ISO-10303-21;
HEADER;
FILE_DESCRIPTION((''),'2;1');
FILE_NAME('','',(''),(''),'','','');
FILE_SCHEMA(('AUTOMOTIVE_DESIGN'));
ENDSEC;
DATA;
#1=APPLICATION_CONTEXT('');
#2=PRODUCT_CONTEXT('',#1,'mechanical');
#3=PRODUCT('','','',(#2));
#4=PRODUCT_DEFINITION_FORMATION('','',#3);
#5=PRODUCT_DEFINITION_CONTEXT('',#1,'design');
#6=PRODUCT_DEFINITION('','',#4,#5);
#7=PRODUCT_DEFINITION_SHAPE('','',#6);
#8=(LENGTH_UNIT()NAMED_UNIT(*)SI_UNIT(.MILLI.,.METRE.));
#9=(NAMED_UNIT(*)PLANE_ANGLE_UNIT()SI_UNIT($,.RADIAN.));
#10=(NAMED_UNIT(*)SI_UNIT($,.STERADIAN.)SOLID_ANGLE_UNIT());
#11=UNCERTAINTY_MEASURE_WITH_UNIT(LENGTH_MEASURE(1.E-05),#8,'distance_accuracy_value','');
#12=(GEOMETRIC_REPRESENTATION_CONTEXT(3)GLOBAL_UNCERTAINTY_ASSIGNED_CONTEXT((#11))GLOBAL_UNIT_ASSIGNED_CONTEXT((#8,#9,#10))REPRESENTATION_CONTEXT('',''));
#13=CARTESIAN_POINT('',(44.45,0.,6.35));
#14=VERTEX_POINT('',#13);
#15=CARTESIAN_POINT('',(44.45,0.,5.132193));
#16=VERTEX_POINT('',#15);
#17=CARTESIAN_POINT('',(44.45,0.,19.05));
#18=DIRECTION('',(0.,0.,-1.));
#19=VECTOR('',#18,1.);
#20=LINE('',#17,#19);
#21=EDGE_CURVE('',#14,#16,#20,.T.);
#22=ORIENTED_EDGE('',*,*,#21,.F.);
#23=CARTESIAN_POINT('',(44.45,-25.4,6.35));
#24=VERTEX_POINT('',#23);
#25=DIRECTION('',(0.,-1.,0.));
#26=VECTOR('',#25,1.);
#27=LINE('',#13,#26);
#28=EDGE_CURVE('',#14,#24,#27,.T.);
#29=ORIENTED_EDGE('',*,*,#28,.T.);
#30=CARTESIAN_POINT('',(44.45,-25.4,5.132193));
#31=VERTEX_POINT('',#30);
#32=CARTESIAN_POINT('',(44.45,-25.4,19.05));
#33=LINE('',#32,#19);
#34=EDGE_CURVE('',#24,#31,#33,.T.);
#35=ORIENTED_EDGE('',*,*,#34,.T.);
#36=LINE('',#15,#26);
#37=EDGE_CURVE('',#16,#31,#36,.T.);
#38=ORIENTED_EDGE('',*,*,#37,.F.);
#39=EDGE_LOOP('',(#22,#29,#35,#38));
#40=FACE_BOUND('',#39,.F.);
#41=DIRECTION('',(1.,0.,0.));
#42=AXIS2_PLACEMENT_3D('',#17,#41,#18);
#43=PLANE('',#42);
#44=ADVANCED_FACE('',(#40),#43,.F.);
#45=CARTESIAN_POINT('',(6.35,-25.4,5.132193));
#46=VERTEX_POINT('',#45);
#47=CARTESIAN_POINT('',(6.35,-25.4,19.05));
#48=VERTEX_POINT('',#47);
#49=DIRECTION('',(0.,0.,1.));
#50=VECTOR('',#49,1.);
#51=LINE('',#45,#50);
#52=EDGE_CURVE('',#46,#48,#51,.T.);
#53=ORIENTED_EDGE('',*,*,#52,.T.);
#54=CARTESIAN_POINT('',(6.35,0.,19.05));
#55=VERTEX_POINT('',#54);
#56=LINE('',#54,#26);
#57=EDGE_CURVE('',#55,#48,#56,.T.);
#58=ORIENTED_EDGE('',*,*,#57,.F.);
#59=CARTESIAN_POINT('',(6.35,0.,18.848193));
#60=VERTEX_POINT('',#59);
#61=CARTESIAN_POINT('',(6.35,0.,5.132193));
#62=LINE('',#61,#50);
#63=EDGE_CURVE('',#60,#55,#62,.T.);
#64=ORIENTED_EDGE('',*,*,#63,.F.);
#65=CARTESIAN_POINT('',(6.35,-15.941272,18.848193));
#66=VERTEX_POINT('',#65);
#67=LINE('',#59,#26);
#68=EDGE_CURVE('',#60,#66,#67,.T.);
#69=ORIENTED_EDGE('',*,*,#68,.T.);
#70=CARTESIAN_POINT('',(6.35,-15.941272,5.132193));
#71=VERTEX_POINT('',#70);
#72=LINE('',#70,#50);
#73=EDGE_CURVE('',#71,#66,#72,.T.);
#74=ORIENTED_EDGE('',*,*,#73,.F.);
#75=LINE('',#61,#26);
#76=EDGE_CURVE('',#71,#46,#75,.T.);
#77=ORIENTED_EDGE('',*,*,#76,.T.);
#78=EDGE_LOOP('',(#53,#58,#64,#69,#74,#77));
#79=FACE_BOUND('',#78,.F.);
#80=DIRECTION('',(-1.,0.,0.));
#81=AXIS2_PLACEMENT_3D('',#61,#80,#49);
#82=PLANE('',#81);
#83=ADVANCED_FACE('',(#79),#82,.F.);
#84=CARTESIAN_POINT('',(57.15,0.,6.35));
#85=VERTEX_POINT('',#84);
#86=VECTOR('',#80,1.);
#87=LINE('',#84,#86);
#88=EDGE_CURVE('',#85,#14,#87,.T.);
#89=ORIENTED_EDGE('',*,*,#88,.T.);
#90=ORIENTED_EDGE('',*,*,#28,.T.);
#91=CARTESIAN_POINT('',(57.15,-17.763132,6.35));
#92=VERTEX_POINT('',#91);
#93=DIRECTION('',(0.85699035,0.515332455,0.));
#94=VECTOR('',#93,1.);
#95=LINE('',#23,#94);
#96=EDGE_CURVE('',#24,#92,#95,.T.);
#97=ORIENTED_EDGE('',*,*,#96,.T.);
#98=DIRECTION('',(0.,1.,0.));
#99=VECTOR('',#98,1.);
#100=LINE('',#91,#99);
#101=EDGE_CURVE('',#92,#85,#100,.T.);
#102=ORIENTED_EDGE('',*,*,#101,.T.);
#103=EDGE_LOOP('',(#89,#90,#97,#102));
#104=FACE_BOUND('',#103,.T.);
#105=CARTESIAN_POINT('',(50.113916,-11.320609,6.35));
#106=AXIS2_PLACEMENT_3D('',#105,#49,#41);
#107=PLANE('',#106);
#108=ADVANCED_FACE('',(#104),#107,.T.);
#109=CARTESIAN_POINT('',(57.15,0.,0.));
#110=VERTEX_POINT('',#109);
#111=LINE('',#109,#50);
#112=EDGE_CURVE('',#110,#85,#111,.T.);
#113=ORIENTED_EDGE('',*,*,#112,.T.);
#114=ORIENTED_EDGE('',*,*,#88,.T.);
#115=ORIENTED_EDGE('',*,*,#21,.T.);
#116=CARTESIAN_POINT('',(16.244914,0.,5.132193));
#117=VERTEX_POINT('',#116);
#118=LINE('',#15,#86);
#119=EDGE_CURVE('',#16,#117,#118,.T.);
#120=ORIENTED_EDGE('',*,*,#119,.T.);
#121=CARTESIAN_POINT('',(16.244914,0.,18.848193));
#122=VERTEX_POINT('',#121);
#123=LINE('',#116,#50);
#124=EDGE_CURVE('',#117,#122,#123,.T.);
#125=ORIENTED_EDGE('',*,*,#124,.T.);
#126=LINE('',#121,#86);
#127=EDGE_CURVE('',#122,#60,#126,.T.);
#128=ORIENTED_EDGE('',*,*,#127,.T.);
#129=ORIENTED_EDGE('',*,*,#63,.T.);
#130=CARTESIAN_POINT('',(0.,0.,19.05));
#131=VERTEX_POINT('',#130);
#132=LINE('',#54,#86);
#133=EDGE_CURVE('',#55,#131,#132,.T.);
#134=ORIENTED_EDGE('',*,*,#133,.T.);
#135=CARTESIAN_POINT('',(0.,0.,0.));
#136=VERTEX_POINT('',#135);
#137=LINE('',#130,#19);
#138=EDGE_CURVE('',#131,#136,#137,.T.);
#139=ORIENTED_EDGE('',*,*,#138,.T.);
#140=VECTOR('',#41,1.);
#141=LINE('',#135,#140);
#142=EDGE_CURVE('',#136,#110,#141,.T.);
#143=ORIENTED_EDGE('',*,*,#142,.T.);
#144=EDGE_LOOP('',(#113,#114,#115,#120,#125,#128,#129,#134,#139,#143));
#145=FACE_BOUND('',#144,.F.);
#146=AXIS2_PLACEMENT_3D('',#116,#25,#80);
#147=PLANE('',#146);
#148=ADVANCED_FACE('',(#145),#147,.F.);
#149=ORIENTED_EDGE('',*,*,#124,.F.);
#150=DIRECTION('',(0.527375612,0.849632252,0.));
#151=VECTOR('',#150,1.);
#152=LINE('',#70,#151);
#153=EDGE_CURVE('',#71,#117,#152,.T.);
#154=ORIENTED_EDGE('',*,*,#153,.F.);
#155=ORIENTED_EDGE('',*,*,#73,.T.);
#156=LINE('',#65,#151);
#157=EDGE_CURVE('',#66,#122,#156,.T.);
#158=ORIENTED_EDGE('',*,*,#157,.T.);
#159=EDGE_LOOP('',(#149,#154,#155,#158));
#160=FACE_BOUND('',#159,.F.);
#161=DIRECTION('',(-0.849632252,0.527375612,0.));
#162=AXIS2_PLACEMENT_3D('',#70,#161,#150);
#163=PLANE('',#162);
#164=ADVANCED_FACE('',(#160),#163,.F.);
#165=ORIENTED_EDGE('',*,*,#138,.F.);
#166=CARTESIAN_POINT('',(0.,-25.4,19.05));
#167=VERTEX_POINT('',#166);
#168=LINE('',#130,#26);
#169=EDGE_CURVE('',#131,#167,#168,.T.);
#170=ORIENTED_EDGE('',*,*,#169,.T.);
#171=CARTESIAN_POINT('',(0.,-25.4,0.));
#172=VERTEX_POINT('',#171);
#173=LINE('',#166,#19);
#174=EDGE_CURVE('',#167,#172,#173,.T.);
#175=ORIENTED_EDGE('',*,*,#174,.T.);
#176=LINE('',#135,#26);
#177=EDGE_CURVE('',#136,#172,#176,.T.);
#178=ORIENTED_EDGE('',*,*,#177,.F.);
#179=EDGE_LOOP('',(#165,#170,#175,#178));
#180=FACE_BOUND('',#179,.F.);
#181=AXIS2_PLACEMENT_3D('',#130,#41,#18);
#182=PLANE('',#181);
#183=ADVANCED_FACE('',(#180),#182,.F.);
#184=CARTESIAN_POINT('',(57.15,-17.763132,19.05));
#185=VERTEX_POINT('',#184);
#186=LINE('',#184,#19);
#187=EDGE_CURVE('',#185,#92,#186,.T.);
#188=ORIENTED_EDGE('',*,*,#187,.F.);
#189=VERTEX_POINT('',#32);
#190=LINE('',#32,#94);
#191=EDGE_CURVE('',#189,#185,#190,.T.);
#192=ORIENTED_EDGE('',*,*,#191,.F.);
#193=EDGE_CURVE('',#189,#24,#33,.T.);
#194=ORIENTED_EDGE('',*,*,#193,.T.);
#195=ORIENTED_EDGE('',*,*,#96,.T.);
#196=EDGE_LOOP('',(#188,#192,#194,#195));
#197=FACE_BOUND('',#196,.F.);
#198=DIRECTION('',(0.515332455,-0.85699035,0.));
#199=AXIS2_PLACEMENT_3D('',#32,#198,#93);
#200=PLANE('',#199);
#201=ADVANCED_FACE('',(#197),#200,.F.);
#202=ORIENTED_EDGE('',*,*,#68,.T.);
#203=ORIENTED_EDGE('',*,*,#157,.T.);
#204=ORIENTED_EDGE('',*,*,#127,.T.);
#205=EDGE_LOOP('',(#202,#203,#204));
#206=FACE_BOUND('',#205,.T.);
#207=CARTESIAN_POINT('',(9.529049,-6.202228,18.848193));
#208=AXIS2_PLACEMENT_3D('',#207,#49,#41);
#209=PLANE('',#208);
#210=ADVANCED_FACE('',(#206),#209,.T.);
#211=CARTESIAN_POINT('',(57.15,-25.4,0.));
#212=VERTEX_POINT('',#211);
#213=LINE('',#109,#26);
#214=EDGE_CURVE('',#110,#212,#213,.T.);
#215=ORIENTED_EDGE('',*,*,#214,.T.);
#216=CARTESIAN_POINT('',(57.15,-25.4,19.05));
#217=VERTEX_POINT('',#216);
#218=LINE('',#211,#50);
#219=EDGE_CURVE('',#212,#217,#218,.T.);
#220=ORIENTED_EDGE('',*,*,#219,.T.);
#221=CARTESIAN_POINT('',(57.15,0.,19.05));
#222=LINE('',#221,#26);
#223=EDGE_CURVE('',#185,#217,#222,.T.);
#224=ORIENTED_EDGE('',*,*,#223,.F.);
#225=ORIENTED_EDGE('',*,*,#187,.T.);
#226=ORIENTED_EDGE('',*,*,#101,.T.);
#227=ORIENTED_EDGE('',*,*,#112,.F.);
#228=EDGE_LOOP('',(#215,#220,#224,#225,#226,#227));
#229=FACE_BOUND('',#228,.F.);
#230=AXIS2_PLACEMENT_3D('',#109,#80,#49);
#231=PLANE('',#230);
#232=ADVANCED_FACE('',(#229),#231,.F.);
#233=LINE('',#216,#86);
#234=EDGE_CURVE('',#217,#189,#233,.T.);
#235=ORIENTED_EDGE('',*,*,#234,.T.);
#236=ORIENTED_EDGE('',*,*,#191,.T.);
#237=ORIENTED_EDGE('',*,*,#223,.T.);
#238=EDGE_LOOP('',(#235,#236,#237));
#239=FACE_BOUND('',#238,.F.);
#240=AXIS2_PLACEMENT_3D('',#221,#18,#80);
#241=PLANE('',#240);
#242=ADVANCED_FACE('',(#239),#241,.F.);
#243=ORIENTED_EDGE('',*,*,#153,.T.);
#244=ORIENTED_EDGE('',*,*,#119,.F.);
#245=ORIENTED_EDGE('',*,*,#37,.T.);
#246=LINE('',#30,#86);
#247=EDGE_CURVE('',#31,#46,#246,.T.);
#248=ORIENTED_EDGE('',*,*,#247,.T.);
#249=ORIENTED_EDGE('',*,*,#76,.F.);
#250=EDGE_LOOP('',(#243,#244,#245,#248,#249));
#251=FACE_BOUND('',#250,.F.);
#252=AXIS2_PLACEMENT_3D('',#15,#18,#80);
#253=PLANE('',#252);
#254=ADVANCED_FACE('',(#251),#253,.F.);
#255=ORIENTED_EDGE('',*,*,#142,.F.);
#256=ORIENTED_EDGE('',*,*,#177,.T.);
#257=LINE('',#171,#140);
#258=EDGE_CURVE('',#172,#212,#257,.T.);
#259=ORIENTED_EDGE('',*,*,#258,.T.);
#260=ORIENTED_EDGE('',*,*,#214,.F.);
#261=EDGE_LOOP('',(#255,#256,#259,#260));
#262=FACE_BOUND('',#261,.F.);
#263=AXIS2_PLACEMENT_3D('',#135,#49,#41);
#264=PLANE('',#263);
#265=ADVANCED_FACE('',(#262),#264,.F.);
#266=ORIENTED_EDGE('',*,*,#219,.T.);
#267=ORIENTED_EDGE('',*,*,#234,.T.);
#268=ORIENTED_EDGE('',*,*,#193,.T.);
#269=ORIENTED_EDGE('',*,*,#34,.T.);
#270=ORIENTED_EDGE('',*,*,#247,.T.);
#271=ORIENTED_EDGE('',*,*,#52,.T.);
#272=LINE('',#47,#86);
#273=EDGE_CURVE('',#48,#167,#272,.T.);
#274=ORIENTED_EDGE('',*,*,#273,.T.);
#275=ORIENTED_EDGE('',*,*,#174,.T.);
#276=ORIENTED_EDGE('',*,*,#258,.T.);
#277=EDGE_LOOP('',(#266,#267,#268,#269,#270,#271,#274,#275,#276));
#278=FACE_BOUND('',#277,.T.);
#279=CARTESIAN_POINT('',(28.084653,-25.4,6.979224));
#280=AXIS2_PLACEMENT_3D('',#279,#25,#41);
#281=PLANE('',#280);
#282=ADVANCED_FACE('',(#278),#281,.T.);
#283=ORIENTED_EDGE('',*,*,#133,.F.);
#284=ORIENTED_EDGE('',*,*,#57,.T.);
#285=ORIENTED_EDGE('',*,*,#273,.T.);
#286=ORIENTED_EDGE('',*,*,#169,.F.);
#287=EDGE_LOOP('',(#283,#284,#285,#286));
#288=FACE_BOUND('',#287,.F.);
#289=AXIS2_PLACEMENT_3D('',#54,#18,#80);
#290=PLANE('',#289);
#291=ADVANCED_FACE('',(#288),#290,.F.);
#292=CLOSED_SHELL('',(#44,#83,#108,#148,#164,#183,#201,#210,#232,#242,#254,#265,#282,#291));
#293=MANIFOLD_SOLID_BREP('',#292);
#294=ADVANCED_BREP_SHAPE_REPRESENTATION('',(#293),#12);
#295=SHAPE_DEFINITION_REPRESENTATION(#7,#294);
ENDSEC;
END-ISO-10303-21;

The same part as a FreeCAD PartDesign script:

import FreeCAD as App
import Part
import Sketcher

V = App.Vector
Q = App.Units.Quantity

doc = App.newDocument("Part")
params = doc.addObject("Spreadsheet::Sheet", "Params")
for row, (alias, value) in enumerate([
    ("sketch1_width", "0.5 in"),
    ("sketch1_width2", "1.5 in"),
    ("sketch1_width3", "2.25 in"),
    ("sketch1_height", "0.75 in"),
    ("pad1_length", "1 in"),
    ("sketch2_height", "1 in"),
    ("sketch2_width", "0.5 in"),
    ("pocket1_length", "0.5 in"),
    ("pad2_length", "0.54 in"),
], start=1):
    params.set(f"A{row}", alias)
    params.set(f"B{row}", "=" + value)
    params.setAlias(f"B{row}", alias)

body = doc.addObject("PartDesign::Body", "Body")

# Sketch on XZ plane
sketch1 = body.newObject("Sketcher::SketchObject", "Sketch")
sketch1.AttachmentSupport = (doc.getObject("XZ_Plane"), [""])
sketch1.MapMode = "FlatFace"
sketch1.addGeometry(Part.LineSegment(V(0, 19, 0), V(0, 0, 0)), False)
sketch1.addGeometry(Part.LineSegment(V(0, 0, 0), V(57, 0, 0)), False)
sketch1.addGeometry(Part.LineSegment(V(57, 0, 0), V(57, 19, 0)), False)
sketch1.addGeometry(Part.LineSegment(V(57, 19, 0), V(44, 19, 0)), False)
sketch1.addGeometry(Part.LineSegment(V(44, 19, 0), V(44, 5, 0)), False)
sketch1.addGeometry(Part.LineSegment(V(44, 5, 0), V(6, 5, 0)), False)
sketch1.addGeometry(Part.LineSegment(V(6, 5, 0), V(6, 19, 0)), False)
sketch1.addGeometry(Part.LineSegment(V(6, 19, 0), V(0, 19, 0)), False)
sketch1.addConstraint(Sketcher.Constraint("Coincident", 0, 2, 1, 1))
sketch1.addConstraint(Sketcher.Constraint("Coincident", 1, 2, 2, 1))
sketch1.addConstraint(Sketcher.Constraint("Coincident", 2, 2, 3, 1))
sketch1.addConstraint(Sketcher.Constraint("Coincident", 3, 2, 4, 1))
sketch1.addConstraint(Sketcher.Constraint("Coincident", 4, 2, 5, 1))
sketch1.addConstraint(Sketcher.Constraint("Coincident", 5, 2, 6, 1))
sketch1.addConstraint(Sketcher.Constraint("Coincident", 6, 2, 7, 1))
sketch1.addConstraint(Sketcher.Constraint("Coincident", 7, 2, 0, 1))
sketch1.addConstraint(Sketcher.Constraint("Vertical", 0))
sketch1.addConstraint(Sketcher.Constraint("Horizontal", 1))
sketch1.addConstraint(Sketcher.Constraint("Vertical", 2))
sketch1.addConstraint(Sketcher.Constraint("Horizontal", 3))
sketch1.addConstraint(Sketcher.Constraint("Vertical", 4))
sketch1.addConstraint(Sketcher.Constraint("Horizontal", 5))
sketch1.addConstraint(Sketcher.Constraint("Vertical", 6))
sketch1.addConstraint(Sketcher.Constraint("Horizontal", 7))
sketch1.addConstraint(Sketcher.Constraint("Coincident", 0, 2, -1, 1))
sketch1.addConstraint(Sketcher.Constraint("Horizontal", 3, 2, 6, 2))
sketch1.addConstraint(Sketcher.Constraint("DistanceX", 3, 2, 3, 1, Q("0.5 in")))
sketch1.addConstraint(Sketcher.Constraint("DistanceX", 5, 2, 5, 1, Q("1.5 in")))
sketch1.addConstraint(Sketcher.Constraint("DistanceX", 1, 1, 1, 2, Q("2.25 in")))
sketch1.addConstraint(Sketcher.Constraint("DistanceY", 0, 2, 0, 1, Q("0.75 in")))
sketch1.addConstraint(Sketcher.Constraint("DistanceY", 4, 2, 4, 1, 13.917807))
sketch1.setExpression("Constraints[18]", "Params.sketch1_width")
sketch1.setExpression("Constraints[19]", "Params.sketch1_width2")
sketch1.setExpression("Constraints[20]", "Params.sketch1_width3")
sketch1.setExpression("Constraints[21]", "Params.sketch1_height")
pad1 = body.newObject("PartDesign::Pad", "Pad")
pad1.Profile = sketch1
pad1.setExpression("Length", "Params.pad1_length")

# Sketch on XY plane
sketch2 = body.newObject("Sketcher::SketchObject", "Sketch001")
sketch2.AttachmentSupport = (doc.getObject("XY_Plane"), [""])
sketch2.MapMode = "FlatFace"
sketch2.AttachmentOffset = App.Placement(V(0, 0, 0.75 * 25.4), App.Rotation())
sketch2.addGeometry(Part.LineSegment(V(44, 0, 0), V(44, -25, 0)), False)
sketch2.addGeometry(Part.LineSegment(V(44, -25, 0), V(57, -18, 0)), False)
sketch2.addGeometry(Part.LineSegment(V(57, -18, 0), V(57, 0, 0)), False)
sketch2.addGeometry(Part.LineSegment(V(57, 0, 0), V(44, 0, 0)), False)
sketch2.addConstraint(Sketcher.Constraint("Coincident", 0, 2, 1, 1))
sketch2.addConstraint(Sketcher.Constraint("Coincident", 1, 2, 2, 1))
sketch2.addConstraint(Sketcher.Constraint("Coincident", 2, 2, 3, 1))
sketch2.addConstraint(Sketcher.Constraint("Coincident", 3, 2, 0, 1))
sketch2.addConstraint(Sketcher.Constraint("Vertical", 0))
sketch2.addConstraint(Sketcher.Constraint("Vertical", 2))
sketch2.addConstraint(Sketcher.Constraint("Horizontal", 3))
sketch2.addConstraint(Sketcher.Constraint("PointOnObject", 2, 2, -1))
sketch2.addConstraint(Sketcher.Constraint("DistanceY", 0, 2, 0, 1, Q("1 in")))
sketch2.addConstraint(Sketcher.Constraint("DistanceX", 3, 2, 3, 1, Q("0.5 in")))
sketch2.addConstraint(Sketcher.Constraint("DistanceX", -1, 1, 0, 2, Q("1.75 in")))
sketch2.addConstraint(Sketcher.Constraint("DistanceY", 2, 1, 2, 2, 17.763132))
sketch2.setExpression("Constraints[8]", "Params.sketch2_height")
sketch2.setExpression("Constraints[9]", "Params.sketch2_width")
pocket1 = body.newObject("PartDesign::Pocket", "Pocket")
pocket1.Profile = sketch2
pocket1.setExpression("Length", "Params.pocket1_length")

# Sketch on XY plane
sketch3 = body.newObject("Sketcher::SketchObject", "Sketch002")
sketch3.AttachmentSupport = (doc.getObject("XY_Plane"), [""])
sketch3.MapMode = "FlatFace"
sketch3.AttachmentOffset = App.Placement(V(0, 0, 5.132193), App.Rotation())
sketch3.addGeometry(Part.LineSegment(V(6, 0, 0), V(6, -16, 0)), False)
sketch3.addGeometry(Part.LineSegment(V(6, -16, 0), V(16, 0, 0)), False)
sketch3.addGeometry(Part.LineSegment(V(16, 0, 0), V(6, 0, 0)), False)
sketch3.addConstraint(Sketcher.Constraint("Coincident", 0, 2, 1, 1))
sketch3.addConstraint(Sketcher.Constraint("Coincident", 1, 2, 2, 1))
sketch3.addConstraint(Sketcher.Constraint("Coincident", 2, 2, 0, 1))
sketch3.addConstraint(Sketcher.Constraint("Vertical", 0))
sketch3.addConstraint(Sketcher.Constraint("Horizontal", 2))
sketch3.addConstraint(Sketcher.Constraint("PointOnObject", 1, 2, -1))
sketch3.addConstraint(Sketcher.Constraint("DistanceX", -1, 1, 0, 2, Q("0.25 in")))
sketch3.addConstraint(Sketcher.Constraint("DistanceX", 2, 2, 2, 1, 9.894914))
sketch3.addConstraint(Sketcher.Constraint("DistanceY", 0, 2, 0, 1, 15.941272))
pad2 = body.newObject("PartDesign::Pad", "Pad001")
pad2.Profile = sketch3
pad2.setExpression("Length", "Params.pad2_length")

doc.recompute()
